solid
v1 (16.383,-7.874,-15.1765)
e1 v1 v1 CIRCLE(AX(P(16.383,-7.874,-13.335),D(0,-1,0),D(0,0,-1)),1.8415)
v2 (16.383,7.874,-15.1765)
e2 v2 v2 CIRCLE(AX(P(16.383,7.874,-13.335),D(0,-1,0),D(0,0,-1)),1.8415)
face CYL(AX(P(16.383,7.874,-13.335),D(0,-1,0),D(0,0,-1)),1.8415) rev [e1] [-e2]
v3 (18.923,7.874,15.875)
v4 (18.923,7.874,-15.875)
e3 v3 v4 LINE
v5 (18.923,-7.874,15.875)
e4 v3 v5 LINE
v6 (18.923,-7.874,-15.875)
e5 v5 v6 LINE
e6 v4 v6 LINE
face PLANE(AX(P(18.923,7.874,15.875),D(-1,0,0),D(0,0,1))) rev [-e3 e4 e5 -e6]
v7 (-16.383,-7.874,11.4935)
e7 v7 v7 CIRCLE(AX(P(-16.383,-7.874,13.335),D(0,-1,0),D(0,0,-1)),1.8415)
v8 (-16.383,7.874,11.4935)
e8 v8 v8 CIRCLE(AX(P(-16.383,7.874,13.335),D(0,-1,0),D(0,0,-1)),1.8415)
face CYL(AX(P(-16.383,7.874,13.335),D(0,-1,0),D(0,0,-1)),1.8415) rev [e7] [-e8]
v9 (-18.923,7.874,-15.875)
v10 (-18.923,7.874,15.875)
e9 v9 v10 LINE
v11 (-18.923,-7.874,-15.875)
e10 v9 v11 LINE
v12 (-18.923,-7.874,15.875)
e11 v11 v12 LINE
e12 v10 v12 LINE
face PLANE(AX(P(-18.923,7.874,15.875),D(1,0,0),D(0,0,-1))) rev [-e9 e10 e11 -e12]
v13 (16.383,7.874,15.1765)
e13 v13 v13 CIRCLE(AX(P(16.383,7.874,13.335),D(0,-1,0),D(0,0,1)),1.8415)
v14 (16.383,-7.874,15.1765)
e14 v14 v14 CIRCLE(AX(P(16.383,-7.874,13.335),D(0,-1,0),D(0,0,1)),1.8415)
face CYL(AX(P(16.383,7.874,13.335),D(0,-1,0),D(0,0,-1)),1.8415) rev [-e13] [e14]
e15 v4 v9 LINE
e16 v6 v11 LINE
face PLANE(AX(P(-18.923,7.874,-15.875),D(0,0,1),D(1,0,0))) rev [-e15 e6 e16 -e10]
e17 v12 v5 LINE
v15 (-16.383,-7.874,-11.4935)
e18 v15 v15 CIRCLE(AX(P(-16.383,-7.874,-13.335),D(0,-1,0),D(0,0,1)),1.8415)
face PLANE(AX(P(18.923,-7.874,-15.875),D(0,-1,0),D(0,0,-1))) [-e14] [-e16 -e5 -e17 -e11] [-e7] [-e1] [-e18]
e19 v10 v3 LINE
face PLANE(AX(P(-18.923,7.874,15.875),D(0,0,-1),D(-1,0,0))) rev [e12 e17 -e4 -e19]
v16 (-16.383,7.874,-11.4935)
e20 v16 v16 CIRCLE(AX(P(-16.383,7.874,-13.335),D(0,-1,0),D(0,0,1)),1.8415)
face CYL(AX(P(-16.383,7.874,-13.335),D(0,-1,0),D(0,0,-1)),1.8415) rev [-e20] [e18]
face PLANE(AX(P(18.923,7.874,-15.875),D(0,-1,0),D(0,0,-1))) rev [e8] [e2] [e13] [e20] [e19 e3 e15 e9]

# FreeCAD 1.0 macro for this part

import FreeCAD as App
import Part
import Sketcher
Q = App.Units.Quantity

doc = App.newDocument("Part")
params = doc.addObject("Spreadsheet::Sheet", "Params")
for row, (alias, value) in enumerate([
    ("sketch1_width", "1.49 in"),
    ("sketch1_height", "1.25 in"),
    ("pad1_length", "0.62 in"),
    ("sketch2_diameter", "0.145 in"),
], start=1):
    params.set(f"A{row}", alias)
    params.set(f"B{row}", "=" + value)
    params.setAlias(f"B{row}", alias)

body = doc.addObject("PartDesign::Body", "Body")

sketch1 = body.newObject("Sketcher::SketchObject", "Sketch")
sketch1.AttachmentSupport = (doc.getObject("XZ_Plane"), [""])
sketch1.MapMode = "FlatFace"
sketch1.addGeometry([
    Part.LineSegment(App.Vector(-19, -16, 0), App.Vector(-19, 16, 0)),
    Part.LineSegment(App.Vector(-19, 16, 0), App.Vector(19, 16, 0)),
    Part.LineSegment(App.Vector(19, 16, 0), App.Vector(19, -16, 0)),
    Part.LineSegment(App.Vector(19, -16, 0), App.Vector(-19, -16, 0)),
], False)
sketch1.addConstraint([
    Sketcher.Constraint("Coincident", 0, 2, 1, 1),
    Sketcher.Constraint("Coincident", 1, 2, 2, 1),
    Sketcher.Constraint("Coincident", 2, 2, 3, 1),
    Sketcher.Constraint("Coincident", 3, 2, 0, 1),
    Sketcher.Constraint("Vertical", 0),
    Sketcher.Constraint("Horizontal", 1),
    Sketcher.Constraint("Vertical", 2),
    Sketcher.Constraint("Horizontal", 3),
    Sketcher.Constraint("Symmetric", 0, 2, 2, 2, -1, 1),
    Sketcher.Constraint("DistanceX", 1, 1, 1, 2, Q("1.49 in")),
    Sketcher.Constraint("DistanceY", 0, 1, 0, 2, Q("1.25 in")),
])
sketch1.setExpression("Constraints[9]", "Params.sketch1_width")
sketch1.setExpression("Constraints[10]", "Params.sketch1_height")
pad1 = body.newObject("PartDesign::Pad", "Pad")
pad1.Profile = sketch1
pad1.setExpression("Length", "Params.pad1_length")
pad1.Midplane = True

sketch2 = body.newObject("Sketcher::SketchObject", "Sketch001")
sketch2.AttachmentSupport = (doc.getObject("XZ_Plane"), [""])
sketch2.MapMode = "FlatFace"
sketch2.AttachmentOffset = App.Placement(App.Vector(0, 0, 0.31 * 25.4), App.Rotation())
sketch2.addGeometry([
    Part.Circle(App.Vector(-16.4, 13.3, 0), App.Vector(0, 0, 1), 1.8),
    Part.Circle(App.Vector(16.4, 13.3, 0), App.Vector(0, 0, 1), 1.8),
    Part.Circle(App.Vector(16.4, -13.3, 0), App.Vector(0, 0, 1), 1.8),
    Part.Circle(App.Vector(-16.4, -13.3, 0), App.Vector(0, 0, 1), 1.8),
], False)
sketch2.addConstraint([
    Sketcher.Constraint("Equal", 0, 1),
    Sketcher.Constraint("Equal", 1, 2),
    Sketcher.Constraint("Equal", 2, 3),
    Sketcher.Constraint("Symmetric", 0, 3, 2, 3, -1, 1),
    Sketcher.Constraint("Symmetric", 1, 3, 3, 3, -1, 1),
    Sketcher.Constraint("Symmetric", 0, 3, 1, 3, -2),
    Sketcher.Constraint("Diameter", 0, Q("0.145 in")),
    Sketcher.Constraint("DistanceX", 0, 3, 1, 3, Q("1.29 in")),
    Sketcher.Constraint("DistanceY", 2, 3, 1, 3, Q("1.05 in")),
])
sketch2.setExpression("Constraints[6]", "Params.sketch2_diameter")
pocket1 = body.newObject("PartDesign::Pocket", "Pocket")
pocket1.Profile = sketch2
pocket1.Type = "ThroughAll"

doc.recompute()
